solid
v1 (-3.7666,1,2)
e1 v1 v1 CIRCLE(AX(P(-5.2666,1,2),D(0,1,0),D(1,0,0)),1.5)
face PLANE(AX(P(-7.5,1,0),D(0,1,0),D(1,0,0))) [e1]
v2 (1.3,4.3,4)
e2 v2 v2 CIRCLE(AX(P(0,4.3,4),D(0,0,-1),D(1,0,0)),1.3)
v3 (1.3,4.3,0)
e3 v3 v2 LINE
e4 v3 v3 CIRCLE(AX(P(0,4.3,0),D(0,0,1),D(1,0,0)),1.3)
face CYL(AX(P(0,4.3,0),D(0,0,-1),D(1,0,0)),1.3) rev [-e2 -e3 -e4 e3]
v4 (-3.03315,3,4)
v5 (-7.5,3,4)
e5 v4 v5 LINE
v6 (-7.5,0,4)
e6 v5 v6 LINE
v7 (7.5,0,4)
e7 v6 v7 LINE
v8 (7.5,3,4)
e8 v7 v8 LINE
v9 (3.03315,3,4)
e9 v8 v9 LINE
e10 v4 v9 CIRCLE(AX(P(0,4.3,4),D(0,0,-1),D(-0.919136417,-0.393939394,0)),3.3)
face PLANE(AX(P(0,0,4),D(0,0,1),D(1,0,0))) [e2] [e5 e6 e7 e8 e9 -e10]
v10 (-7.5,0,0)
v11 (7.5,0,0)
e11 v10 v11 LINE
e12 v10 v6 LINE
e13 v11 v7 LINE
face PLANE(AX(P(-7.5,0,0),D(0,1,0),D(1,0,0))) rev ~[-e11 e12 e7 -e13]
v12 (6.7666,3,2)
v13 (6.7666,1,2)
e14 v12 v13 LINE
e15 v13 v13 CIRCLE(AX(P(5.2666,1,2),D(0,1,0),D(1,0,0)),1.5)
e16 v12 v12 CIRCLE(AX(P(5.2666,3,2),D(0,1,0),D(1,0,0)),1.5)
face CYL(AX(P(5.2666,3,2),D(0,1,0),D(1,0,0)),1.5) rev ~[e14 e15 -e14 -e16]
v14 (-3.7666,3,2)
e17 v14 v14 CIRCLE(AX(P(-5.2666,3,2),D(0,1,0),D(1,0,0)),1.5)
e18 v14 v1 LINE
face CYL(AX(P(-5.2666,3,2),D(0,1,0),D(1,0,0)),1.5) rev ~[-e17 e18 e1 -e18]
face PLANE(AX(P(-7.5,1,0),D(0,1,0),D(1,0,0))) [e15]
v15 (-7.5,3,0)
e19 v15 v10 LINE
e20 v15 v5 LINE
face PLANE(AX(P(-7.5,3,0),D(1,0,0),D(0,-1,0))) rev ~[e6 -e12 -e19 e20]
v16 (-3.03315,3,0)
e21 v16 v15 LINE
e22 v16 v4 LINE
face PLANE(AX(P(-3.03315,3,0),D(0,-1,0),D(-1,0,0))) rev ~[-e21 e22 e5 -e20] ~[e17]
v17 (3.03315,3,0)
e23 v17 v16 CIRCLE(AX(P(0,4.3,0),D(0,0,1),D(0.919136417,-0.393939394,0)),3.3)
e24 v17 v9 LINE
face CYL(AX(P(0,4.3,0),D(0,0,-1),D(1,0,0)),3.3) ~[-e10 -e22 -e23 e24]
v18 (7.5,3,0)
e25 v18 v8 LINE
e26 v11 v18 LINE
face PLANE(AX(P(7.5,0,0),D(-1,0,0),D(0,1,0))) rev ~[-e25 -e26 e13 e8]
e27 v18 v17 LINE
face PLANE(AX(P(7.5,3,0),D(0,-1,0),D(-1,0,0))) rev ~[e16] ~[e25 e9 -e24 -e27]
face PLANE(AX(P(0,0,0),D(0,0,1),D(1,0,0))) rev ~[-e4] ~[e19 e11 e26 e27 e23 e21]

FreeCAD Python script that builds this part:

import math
import FreeCAD as App
import Part
import Sketcher

doc = App.newDocument("Part")
params = doc.addObject("Spreadsheet::Sheet", "Params")
for row, (alias, value) in enumerate([
    ("sketch1_diameter", "2.6 mm"),
    ("sketch1_width", "15 mm"),
    ("sketch1_height", "3 mm"),
    ("sketch1_radius", "3.3 mm"),
    ("pad1_length", "4 mm"),
    ("sketch2_diameter", "3 mm"),
    ("pocket1_length", "2 mm"),
], start=1):
    params.set(f"A{row}", alias)
    params.set(f"B{row}", "=" + value)
    params.setAlias(f"B{row}", alias)

body = doc.addObject("PartDesign::Body", "Body")

# Sketch on XY plane
sketch1 = doc.addObject("Sketcher::SketchObject", "Sketch")
body.addObject(sketch1)
sketch1.AttachmentSupport = (doc.XY_Plane, [""])
sketch1.MapMode = "FlatFace"
sketch1.addGeometry([
    Part.LineSegment(App.Vector(-3, 3, 0), App.Vector(-7.5, 3, 0)),  # 0
    Part.LineSegment(App.Vector(-7.5, 3, 0), App.Vector(-7.5, 0, 0)),  # 1
    Part.LineSegment(App.Vector(-7.5, 0, 0), App.Vector(7.5, 0, 0)),  # 2
    Part.LineSegment(App.Vector(7.5, 0, 0), App.Vector(7.5, 3, 0)),  # 3
    Part.LineSegment(App.Vector(7.5, 3, 0), App.Vector(3, 3, 0)),  # 4
    Part.ArcOfCircle(Part.Circle(App.Vector(0, 4.3, 0), App.Vector(0, 0, 1), 3.3), math.radians(-23), math.radians(203)),  # 5
    Part.Circle(App.Vector(0, 4.3, 0), App.Vector(0, 0, 1), 1.3),  # 6
], False)
sketch1.addConstraint([
    Sketcher.Constraint("Coincident", 0, 2, 1, 1),
    Sketcher.Constraint("Coincident", 1, 2, 2, 1),
    Sketcher.Constraint("Coincident", 2, 2, 3, 1),
    Sketcher.Constraint("Coincident", 3, 2, 4, 1),
    Sketcher.Constraint("Coincident", 4, 2, 5, 1),
    Sketcher.Constraint("Coincident", 5, 2, 0, 1),
    Sketcher.Constraint("Horizontal", 0),
    Sketcher.Constraint("Vertical", 1),
    Sketcher.Constraint("Horizontal", 2),
    Sketcher.Constraint("Vertical", 3),
    Sketcher.Constraint("Horizontal", 4),
    Sketcher.Constraint("Coincident", 6, 3, 5, 3),
    Sketcher.Constraint("Symmetric", 1, 2, 2, 2, -1, 1),
    Sketcher.Constraint("Symmetric", 4, 2, 5, 2, -2),
    Sketcher.Constraint("Diameter", 6, 2.6),
    Sketcher.Constraint("DistanceX", 2, 1, 2, 2, 15.0),
    Sketcher.Constraint("DistanceY", 1, 2, 1, 1, 3.0),
    Sketcher.Constraint("Radius", 5, 3.3),
    Sketcher.Constraint("DistanceY", -1, 1, 5, 3, 4.3),
])
sketch1.setExpression("Constraints[14]", "Params.sketch1_diameter")
sketch1.setExpression("Constraints[15]", "Params.sketch1_width")
sketch1.setExpression("Constraints[16]", "Params.sketch1_height")
sketch1.setExpression("Constraints[17]", "Params.sketch1_radius")
pad1 = doc.addObject("PartDesign::Pad", "Pad")
body.addObject(pad1)
pad1.Profile = sketch1
pad1.setExpression("Length", "Params.pad1_length")

# Sketch on XZ plane
sketch2 = doc.addObject("Sketcher::SketchObject", "Sketch001")
body.addObject(sketch2)
sketch2.AttachmentSupport = (doc.XZ_Plane, [""])
sketch2.MapMode = "FlatFace"
sketch2.AttachmentOffset = App.Placement(App.Vector(0, 0, -3), App.Rotation())
sketch2.addGeometry([
    Part.Circle(App.Vector(-5.3, 2, 0), App.Vector(0, 0, 1), 1.5),
    Part.Circle(App.Vector(5.3, 2, 0), App.Vector(0, 0, 1), 1.5),
], False)
sketch2.addConstraint([
    Sketcher.Constraint("Equal", 0, 1),
    Sketcher.Constraint("Symmetric", 0, 3, 1, 3, -2),
    Sketcher.Constraint("Diameter", 0, 3.0),
    Sketcher.Constraint("DistanceY", -1, 1, 0, 3, 2.0),
    Sketcher.Constraint("DistanceX", 0, 3, -1, 1, 5.2666),
])
sketch2.setExpression("Constraints[2]", "Params.sketch2_diameter")
pocket1 = doc.addObject("PartDesign::Pocket", "Pocket")
body.addObject(pocket1)
pocket1.Profile = sketch2
pocket1.setExpression("Length", "Params.pocket1_length")
pocket1.Reversed = True

doc.recompute()
